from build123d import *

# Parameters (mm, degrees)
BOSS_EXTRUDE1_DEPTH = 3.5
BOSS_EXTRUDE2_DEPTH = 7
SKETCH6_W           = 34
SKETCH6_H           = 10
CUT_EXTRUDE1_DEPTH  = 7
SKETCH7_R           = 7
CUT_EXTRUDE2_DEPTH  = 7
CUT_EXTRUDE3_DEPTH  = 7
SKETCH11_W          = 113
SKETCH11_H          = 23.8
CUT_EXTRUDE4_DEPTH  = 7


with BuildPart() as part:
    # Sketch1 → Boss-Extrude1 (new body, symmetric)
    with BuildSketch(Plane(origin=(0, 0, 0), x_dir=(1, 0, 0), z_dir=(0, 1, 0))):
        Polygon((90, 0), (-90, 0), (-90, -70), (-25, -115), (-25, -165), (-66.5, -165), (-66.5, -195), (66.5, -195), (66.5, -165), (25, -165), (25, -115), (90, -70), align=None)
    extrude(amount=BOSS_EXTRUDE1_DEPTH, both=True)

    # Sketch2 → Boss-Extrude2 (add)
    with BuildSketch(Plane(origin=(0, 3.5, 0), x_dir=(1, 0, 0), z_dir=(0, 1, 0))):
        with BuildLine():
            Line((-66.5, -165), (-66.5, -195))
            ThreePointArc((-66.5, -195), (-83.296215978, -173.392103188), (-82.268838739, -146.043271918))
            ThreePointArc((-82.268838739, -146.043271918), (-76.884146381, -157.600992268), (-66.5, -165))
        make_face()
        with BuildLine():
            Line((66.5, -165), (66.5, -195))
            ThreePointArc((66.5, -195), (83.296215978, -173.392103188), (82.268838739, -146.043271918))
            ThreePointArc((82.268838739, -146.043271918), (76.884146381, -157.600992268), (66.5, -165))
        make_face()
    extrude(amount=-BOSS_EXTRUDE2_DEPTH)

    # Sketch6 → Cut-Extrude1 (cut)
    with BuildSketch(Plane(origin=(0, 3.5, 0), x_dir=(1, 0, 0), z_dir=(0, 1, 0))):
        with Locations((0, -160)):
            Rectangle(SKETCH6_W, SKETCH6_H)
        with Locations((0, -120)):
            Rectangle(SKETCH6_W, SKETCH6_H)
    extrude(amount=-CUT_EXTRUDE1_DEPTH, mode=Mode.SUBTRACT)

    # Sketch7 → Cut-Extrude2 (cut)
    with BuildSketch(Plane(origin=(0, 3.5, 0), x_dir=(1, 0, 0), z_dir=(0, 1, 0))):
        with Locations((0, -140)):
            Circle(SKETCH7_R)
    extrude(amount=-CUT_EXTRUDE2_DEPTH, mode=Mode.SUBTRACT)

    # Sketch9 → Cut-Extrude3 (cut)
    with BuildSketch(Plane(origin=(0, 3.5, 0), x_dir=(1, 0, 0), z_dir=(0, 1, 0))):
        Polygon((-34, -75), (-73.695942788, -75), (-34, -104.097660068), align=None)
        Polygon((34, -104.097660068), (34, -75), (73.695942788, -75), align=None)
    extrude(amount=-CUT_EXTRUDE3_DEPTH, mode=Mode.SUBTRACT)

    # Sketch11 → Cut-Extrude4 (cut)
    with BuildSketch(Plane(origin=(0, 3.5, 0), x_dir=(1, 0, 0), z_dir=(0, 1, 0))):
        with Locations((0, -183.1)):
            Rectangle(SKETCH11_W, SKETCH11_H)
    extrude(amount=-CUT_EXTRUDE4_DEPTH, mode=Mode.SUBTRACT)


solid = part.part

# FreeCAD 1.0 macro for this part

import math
import FreeCAD as App
import Part
import Sketcher
from FreeCAD import Vector
Q = App.Units.Quantity


def add_polygon(sketch, points):
    """Adds a closed chain of lines whose ends are joined by coincident constraints."""
    first, n = sketch.GeometryCount, len(points)
    for a, b in zip(points, points[1:] + points[:1]):
        sketch.addGeometry(Part.LineSegment(App.Vector(*a, 0), App.Vector(*b, 0)), False)
    for i in range(n):
        sketch.addConstraint(Sketcher.Constraint("Coincident", first + i, 2, first + (i + 1) % n, 1))

doc = App.newDocument("Part")
body = doc.addObject("PartDesign::Body", "Body")

sketch1 = body.newObject("Sketcher::SketchObject", "Sketch")
sketch1.AttachmentSupport = (doc.getObject("XZ_Plane"), [""])
sketch1.MapMode = "FlatFace"
add_polygon(sketch1, [(90, 0), (-90, 0), (-90, 70), (-25, 115), (-25, 165), (-66, 165), (-66, 195), (66, 195), (66, 165), (25, 165), (25, 115), (90, 70)])
sketch1.addConstraint([
    Sketcher.Constraint("Horizontal", 0),
    Sketcher.Constraint("Vertical", 1),
    Sketcher.Constraint("Vertical", 3),
    Sketcher.Constraint("Horizontal", 4),
    Sketcher.Constraint("Vertical", 5),
    Sketcher.Constraint("Horizontal", 6),
    Sketcher.Constraint("Vertical", 7),
    Sketcher.Constraint("Horizontal", 8),
    Sketcher.Constraint("Vertical", 9),
    Sketcher.Constraint("Vertical", 11),
    Sketcher.Constraint("Symmetric", 0, 2, 11, 2, -1, 1),
    Sketcher.Constraint("Symmetric", 4, 2, 7, 2, -2),
    Sketcher.Constraint("Symmetric", 2, 2, 9, 2, -2),
    Sketcher.Constraint("Horizontal", 1, 2, 10, 2),
    Sketcher.Constraint("DistanceX", 0, 2, 0, 1, Q("180 mm")),
    Sketcher.Constraint("DistanceX", 6, 1, 6, 2, Q("133 mm")),
    Sketcher.Constraint("DistanceY", 1, 1, 1, 2, Q("70 mm")),
    Sketcher.Constraint("DistanceY", 3, 1, 3, 2, Q("50 mm")),
    Sketcher.Constraint("DistanceY", 5, 1, 5, 2, Q("30 mm")),
    Sketcher.Constraint("DistanceX", 4, 2, 4, 1, Q("41.5 mm")),
    Sketcher.Constraint("DistanceY", -1, 1, 2, 2, Q("115 mm")),
])
pad1 = body.newObject("PartDesign::Pad", "Pad")
pad1.Profile = sketch1
pad1.Length = 7
pad1.Midplane = True

sketch2 = body.newObject("Sketcher::SketchObject", "Sketch001")
sketch2.AttachmentSupport = (doc.getObject("XZ_Plane"), [""])
sketch2.MapMode = "FlatFace"
sketch2.AttachmentOffset = App.Placement(Vector(0, 0, -3.5), App.Rotation())
sketch2.addGeometry([
    Part.LineSegment(Vector(-66, 195, 0), Vector(-66, 165, 0)),
    Part.ArcOfCircle(Part.Circle(Vector(-58, 142, 0), Vector(0, 0, 1), 25), math.radians(111), math.radians(170)),
    Part.ArcOfCircle(Part.Circle(Vector(-45, 161, 0), Vector(0, 0, 1), 40), math.radians(122), math.radians(202)),
    Part.LineSegment(Vector(66, 165, 0), Vector(66, 195, 0)),
    Part.ArcOfCircle(Part.Circle(Vector(45, 161, 0), Vector(0, 0, 1), 40), math.radians(-22), math.radians(58)),
    Part.ArcOfCircle(Part.Circle(Vector(58, 142, 0), Vector(0, 0, 1), 25), math.radians(10), math.radians(69)),
], False)
sketch2.addConstraint([
    Sketcher.Constraint("Coincident", 0, 2, 1, 1),
    Sketcher.Constraint("Coincident", 1, 2, 2, 2),
    Sketcher.Constraint("Coincident", 2, 1, 0, 1),
    Sketcher.Constraint("Coincident", 3, 2, 4, 2),
    Sketcher.Constraint("Coincident", 4, 1, 5, 1),
    Sketcher.Constraint("Coincident", 5, 2, 3, 1),
    Sketcher.Constraint("Vertical", 0),
    Sketcher.Constraint("Vertical", 3),
    Sketcher.Constraint("Equal", 2, 4),
    Sketcher.Constraint("Equal", 1, 5),
    Sketcher.Constraint("Symmetric", 2, 3, 4, 3, -2),
    Sketcher.Constraint("Symmetric", 1, 3, 5, 3, -2),
    Sketcher.Constraint("Horizontal", 2, 1, 3, 2),
    Sketcher.Constraint("Radius", 1, Q("25 mm")),
    Sketcher.Constraint("Radius", 2, Q("40 mm")),
    Sketcher.Constraint("DistanceY", 0, 2, 0, 1, Q("30 mm")),
    Sketcher.Constraint("DistanceY", -1, 1, 0, 2, Q("165 mm")),
    Sketcher.Constraint("DistanceX", 2, 1, 3, 2, Q("133 mm")),
    Sketcher.Constraint("DistanceX", 2, 3, 4, 3, Q("90.445 mm")),
    Sketcher.Constraint("DistanceX", 1, 2, -1, 1, Q("82.268839 mm")),
])
pad2 = body.newObject("PartDesign::Pad", "Pad001")
pad2.Profile = sketch2
pad2.Length = 7

sketch3 = body.newObject("Sketcher::SketchObject", "Sketch002")
sketch3.AttachmentSupport = (doc.getObject("XZ_Plane"), [""])
sketch3.MapMode = "FlatFace"
sketch3.AttachmentOffset = App.Placement(Vector(0, 0, -3.5), App.Rotation())
add_polygon(sketch3, [(-17, 155), (-17, 165), (17, 165), (17, 155)])
add_polygon(sketch3, [(-17, 115), (-17, 125), (17, 125), (17, 115)])
sketch3.addConstraint([
    Sketcher.Constraint("Vertical", 0),
    Sketcher.Constraint("Horizontal", 1),
    Sketcher.Constraint("Vertical", 2),
    Sketcher.Constraint("Horizontal", 3),
    Sketcher.Constraint("Vertical", 4),
    Sketcher.Constraint("Horizontal", 5),
    Sketcher.Constraint("Vertical", 6),
    Sketcher.Constraint("Horizontal", 7),
    Sketcher.Constraint("Vertical", 3, 2, 4, 2),
    Sketcher.Constraint("Vertical", 2, 2, 5, 2),
    Sketcher.Constraint("Equal", 2, 4),
    Sketcher.Constraint("DistanceX", 1, 1, 1, 2, Q("34 mm")),
    Sketcher.Constraint("DistanceY", 0, 1, 0, 2, Q("10 mm")),
    Sketcher.Constraint("DistanceX", 0, 2, -1, 1, Q("17 mm")),
    Sketcher.Constraint("DistanceY", -1, 1, 0, 2, Q("165 mm")),
    Sketcher.Constraint("DistanceY", -1, 1, 4, 2, Q("125 mm")),
])
pocket1 = body.newObject("PartDesign::Pocket", "Pocket")
pocket1.Profile = sketch3
pocket1.Length = 7
pocket1.Reversed = True

sketch4 = body.newObject("Sketcher::SketchObject", "Sketch003")
sketch4.AttachmentSupport = (doc.getObject("XZ_Plane"), [""])
sketch4.MapMode = "FlatFace"
sketch4.AttachmentOffset = App.Placement(Vector(0, 0, -3.5), App.Rotation())
sketch4.addGeometry(Part.Circle(Vector(0, 140, 0), Vector(0, 0, 1), 7), False)
sketch4.addConstraint([
    Sketcher.Constraint("PointOnObject", 0, 3, -2),
    Sketcher.Constraint("Diameter", 0, Q("14 mm")),
    Sketcher.Constraint("DistanceY", -1, 1, 0, 3, Q("140 mm")),
])
pocket2 = body.newObject("PartDesign::Pocket", "Pocket001")
pocket2.Profile = sketch4
pocket2.Length = 7
pocket2.Reversed = True

sketch5 = body.newObject("Sketcher::SketchObject", "Sketch004")
sketch5.AttachmentSupport = (doc.getObject("XZ_Plane"), [""])
sketch5.MapMode = "FlatFace"
sketch5.AttachmentOffset = App.Placement(Vector(0, 0, -3.5), App.Rotation())
add_polygon(sketch5, [(-34, 75), (-74, 75), (-34, 104)])
add_polygon(sketch5, [(34, 75), (34, 104), (74, 75)])
sketch5.addConstraint([
    Sketcher.Constraint("Horizontal", 0),
    Sketcher.Constraint("Vertical", 2),
    Sketcher.Constraint("Vertical", 3),
    Sketcher.Constraint("Horizontal", 5),
    Sketcher.Constraint("Symmetric", 1, 2, 3, 2, -2),
    Sketcher.Constraint("Symmetric", 0, 2, 4, 2, -2),
    Sketcher.Constraint("DistanceY", -1, 1, 0, 2, Q("75 mm")),
    Sketcher.Constraint("DistanceX", 1, 2, -1, 1, Q("34 mm")),
    Sketcher.Constraint("DistanceY", 2, 2, 2, 1, Q("29.09766 mm")),
    Sketcher.Constraint("DistanceX", 0, 2, 0, 1, Q("39.695943 mm")),
])
pocket3 = body.newObject("PartDesign::Pocket", "Pocket002")
pocket3.Profile = sketch5
pocket3.Length = 7
pocket3.Reversed = True

sketch6 = body.newObject("Sketcher::SketchObject", "Sketch005")
sketch6.AttachmentSupport = (doc.getObject("XZ_Plane"), [""])
sketch6.MapMode = "FlatFace"
sketch6.AttachmentOffset = App.Placement(Vector(0, 0, -3.5), App.Rotation())
add_polygon(sketch6, [(-56, 171), (-56, 195), (56, 195), (56, 171)])
sketch6.addConstraint([
    Sketcher.Constraint("Vertical", 0),
    Sketcher.Constraint("Horizontal", 1),
    Sketcher.Constraint("Vertical", 2),
    Sketcher.Constraint("Horizontal", 3),
    Sketcher.Constraint("DistanceX", 1, 1, 1, 2, Q("113 mm")),
    Sketcher.Constraint("DistanceY", 0, 1, 0, 2, Q("23.8 mm")),
    Sketcher.Constraint("DistanceY", -1, 1, 0, 2, Q("195 mm")),
    Sketcher.Constraint("DistanceX", 0, 2, -1, 1, Q("56.5 mm")),
])
pocket4 = body.newObject("PartDesign::Pocket", "Pocket003")
pocket4.Profile = sketch6
pocket4.Length = 7
pocket4.Reversed = True

doc.recompute()
